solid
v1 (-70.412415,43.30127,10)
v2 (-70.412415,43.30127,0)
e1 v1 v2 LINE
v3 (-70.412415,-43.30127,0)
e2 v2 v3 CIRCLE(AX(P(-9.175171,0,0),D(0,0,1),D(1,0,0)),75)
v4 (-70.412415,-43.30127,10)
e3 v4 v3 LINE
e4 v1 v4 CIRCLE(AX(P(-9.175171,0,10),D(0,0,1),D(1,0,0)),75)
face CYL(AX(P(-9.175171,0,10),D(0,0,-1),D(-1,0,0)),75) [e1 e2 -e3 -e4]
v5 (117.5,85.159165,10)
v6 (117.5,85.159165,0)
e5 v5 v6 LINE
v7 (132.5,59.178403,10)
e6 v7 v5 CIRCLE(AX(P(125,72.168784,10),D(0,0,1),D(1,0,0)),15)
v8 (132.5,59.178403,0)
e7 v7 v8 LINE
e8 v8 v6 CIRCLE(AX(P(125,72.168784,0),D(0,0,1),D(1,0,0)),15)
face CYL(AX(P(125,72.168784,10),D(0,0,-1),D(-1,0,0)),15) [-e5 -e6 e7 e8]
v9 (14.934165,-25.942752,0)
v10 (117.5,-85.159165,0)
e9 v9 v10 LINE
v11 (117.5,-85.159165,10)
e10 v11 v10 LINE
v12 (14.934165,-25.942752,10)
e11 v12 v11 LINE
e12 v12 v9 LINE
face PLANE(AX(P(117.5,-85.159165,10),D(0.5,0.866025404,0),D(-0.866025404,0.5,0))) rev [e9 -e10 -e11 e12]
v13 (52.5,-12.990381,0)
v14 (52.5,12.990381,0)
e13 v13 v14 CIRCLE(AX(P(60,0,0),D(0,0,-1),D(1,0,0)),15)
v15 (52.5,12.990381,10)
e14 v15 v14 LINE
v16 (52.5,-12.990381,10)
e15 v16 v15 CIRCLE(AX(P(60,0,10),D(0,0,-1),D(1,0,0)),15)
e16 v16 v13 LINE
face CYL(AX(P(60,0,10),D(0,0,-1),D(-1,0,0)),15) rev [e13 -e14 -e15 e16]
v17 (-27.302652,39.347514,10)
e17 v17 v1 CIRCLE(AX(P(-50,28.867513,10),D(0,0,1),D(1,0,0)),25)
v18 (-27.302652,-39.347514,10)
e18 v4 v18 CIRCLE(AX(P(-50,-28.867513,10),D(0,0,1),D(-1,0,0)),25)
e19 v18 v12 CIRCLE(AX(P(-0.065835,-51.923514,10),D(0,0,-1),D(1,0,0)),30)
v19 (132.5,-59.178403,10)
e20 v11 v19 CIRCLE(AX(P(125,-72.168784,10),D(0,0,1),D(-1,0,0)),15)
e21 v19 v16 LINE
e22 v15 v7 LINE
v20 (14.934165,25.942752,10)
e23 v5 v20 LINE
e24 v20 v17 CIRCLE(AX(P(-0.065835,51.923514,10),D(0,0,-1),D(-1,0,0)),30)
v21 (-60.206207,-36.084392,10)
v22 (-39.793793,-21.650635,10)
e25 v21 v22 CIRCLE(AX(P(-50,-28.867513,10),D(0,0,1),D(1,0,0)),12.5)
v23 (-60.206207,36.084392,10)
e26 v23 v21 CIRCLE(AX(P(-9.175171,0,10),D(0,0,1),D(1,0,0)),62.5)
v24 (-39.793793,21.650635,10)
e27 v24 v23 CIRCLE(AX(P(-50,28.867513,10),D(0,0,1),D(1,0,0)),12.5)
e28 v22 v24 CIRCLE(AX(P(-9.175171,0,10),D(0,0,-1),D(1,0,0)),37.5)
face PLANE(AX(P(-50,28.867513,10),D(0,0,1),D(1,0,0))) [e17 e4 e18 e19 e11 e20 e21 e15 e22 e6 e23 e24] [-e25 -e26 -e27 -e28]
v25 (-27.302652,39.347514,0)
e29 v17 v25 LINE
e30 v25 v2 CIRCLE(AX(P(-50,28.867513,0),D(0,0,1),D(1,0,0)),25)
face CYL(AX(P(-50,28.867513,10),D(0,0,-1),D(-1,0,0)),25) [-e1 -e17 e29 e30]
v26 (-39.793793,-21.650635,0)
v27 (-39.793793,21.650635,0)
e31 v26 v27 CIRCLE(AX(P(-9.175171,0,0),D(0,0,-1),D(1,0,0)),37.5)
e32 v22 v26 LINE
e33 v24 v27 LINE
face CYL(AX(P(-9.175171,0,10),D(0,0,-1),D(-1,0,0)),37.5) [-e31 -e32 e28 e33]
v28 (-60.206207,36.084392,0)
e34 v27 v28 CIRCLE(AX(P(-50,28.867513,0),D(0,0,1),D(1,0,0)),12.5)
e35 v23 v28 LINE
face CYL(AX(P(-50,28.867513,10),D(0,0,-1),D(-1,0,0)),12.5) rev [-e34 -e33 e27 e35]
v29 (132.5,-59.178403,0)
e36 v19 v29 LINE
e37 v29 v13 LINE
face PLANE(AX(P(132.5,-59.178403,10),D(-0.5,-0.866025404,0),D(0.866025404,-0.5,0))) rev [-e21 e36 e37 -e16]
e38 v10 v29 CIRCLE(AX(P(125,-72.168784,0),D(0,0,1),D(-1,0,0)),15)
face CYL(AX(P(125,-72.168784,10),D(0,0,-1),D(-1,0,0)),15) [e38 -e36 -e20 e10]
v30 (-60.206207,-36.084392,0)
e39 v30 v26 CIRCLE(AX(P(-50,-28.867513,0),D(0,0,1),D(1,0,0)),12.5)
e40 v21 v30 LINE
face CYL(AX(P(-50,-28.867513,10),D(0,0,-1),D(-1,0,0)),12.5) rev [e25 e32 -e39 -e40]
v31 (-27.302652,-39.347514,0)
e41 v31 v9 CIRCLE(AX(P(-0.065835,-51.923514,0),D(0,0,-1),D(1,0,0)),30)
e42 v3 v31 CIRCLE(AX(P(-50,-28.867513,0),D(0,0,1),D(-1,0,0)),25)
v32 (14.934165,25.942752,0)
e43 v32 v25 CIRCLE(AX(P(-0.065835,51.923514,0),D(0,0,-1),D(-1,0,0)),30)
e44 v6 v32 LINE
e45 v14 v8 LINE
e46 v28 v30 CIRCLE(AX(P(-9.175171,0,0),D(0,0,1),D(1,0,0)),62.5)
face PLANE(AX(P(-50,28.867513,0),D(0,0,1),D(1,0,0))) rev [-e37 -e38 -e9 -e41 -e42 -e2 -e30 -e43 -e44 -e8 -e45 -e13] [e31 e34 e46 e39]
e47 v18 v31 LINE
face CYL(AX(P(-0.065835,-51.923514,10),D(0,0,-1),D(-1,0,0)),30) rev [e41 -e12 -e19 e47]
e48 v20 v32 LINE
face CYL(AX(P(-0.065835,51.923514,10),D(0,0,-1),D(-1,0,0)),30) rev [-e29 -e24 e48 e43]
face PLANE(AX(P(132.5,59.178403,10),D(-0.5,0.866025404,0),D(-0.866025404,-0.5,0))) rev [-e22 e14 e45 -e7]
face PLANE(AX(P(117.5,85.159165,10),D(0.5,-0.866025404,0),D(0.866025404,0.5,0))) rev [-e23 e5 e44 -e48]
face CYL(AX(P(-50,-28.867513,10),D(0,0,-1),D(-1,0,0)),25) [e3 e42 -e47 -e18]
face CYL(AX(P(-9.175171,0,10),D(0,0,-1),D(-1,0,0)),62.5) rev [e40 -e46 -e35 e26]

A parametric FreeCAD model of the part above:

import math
import FreeCAD as App
import Part
import Sketcher
Q = App.Units.Quantity

doc = App.newDocument("Part")
body = doc.addObject("PartDesign::Body", "Body")

# Sketch on XY plane
sketch1 = body.newObject("Sketcher::SketchObject", "Sketch")
sketch1.AttachmentSupport = (doc.getObject("XY_Plane"), [""])
sketch1.MapMode = "FlatFace"
sketch1.addGeometry([
    Part.LineSegment(App.Vector(118, 85, 0), App.Vector(15, 26, 0)),  # 0
    Part.ArcOfCircle(Part.Circle(App.Vector(0, 52, 0), App.Vector(0, 0, 1), 30), math.radians(-155), math.radians(-60)),  # 1
    Part.ArcOfCircle(Part.Circle(App.Vector(-50, 29, 0), App.Vector(0, 0, 1), 25), math.radians(25), math.radians(145)),  # 2
    Part.ArcOfCircle(Part.Circle(App.Vector(-9, 0, 0), App.Vector(0, 0, 1), 75), math.radians(145), math.radians(215)),  # 3
    Part.ArcOfCircle(Part.Circle(App.Vector(-50, -29, 0), App.Vector(0, 0, 1), 25), math.radians(-145), math.radians(-25)),  # 4
    Part.ArcOfCircle(Part.Circle(App.Vector(0, -52, 0), App.Vector(0, 0, 1), 30), math.radians(60), math.radians(155)),  # 5
    Part.LineSegment(App.Vector(15, -26, 0), App.Vector(118, -85, 0)),  # 6
    Part.ArcOfCircle(Part.Circle(App.Vector(125, -72, 0), App.Vector(0, 0, 1), 15), math.radians(-120), math.radians(60)),  # 7
    Part.LineSegment(App.Vector(132, -59, 0), App.Vector(52, -13, 0)),  # 8
    Part.ArcOfCircle(Part.Circle(App.Vector(60, 0, 0), App.Vector(0, 0, 1), 15), math.radians(120), math.radians(240)),  # 9
    Part.LineSegment(App.Vector(52, 13, 0), App.Vector(132, 59, 0)),  # 10
    Part.ArcOfCircle(Part.Circle(App.Vector(125, 72, 0), App.Vector(0, 0, 1), 15), math.radians(-60), math.radians(120)),  # 11
    Part.ArcOfCircle(Part.Circle(App.Vector(-9, 0, 0), App.Vector(0, 0, 1), 62), math.radians(145), math.radians(215)),  # 12
    Part.ArcOfCircle(Part.Circle(App.Vector(-50, 29, 0), App.Vector(0, 0, 1), 12), math.radians(-35), math.radians(145)),  # 13
    Part.ArcOfCircle(Part.Circle(App.Vector(-9, 0, 0), App.Vector(0, 0, 1), 37), math.radians(145), math.radians(215)),  # 14
    Part.ArcOfCircle(Part.Circle(App.Vector(-50, -29, 0), App.Vector(0, 0, 1), 12), math.radians(-145), math.radians(35)),  # 15
], False)
sketch1.addConstraint([
    Sketcher.Constraint("Tangent", 0, 2, 1, 2),
    Sketcher.Constraint("Tangent", 1, 1, 2, 1),
    Sketcher.Constraint("Tangent", 2, 2, 3, 1),
    Sketcher.Constraint("Tangent", 3, 2, 4, 1),
    Sketcher.Constraint("Tangent", 4, 2, 5, 2),
    Sketcher.Constraint("Tangent", 5, 1, 6, 1),
    Sketcher.Constraint("Tangent", 6, 2, 7, 1),
    Sketcher.Constraint("Tangent", 7, 2, 8, 1),
    Sketcher.Constraint("Tangent", 8, 2, 9, 2),
    Sketcher.Constraint("Tangent", 9, 1, 10, 1),
    Sketcher.Constraint("Tangent", 10, 2, 11, 1),
    Sketcher.Constraint("Tangent", 11, 2, 0, 1),
    Sketcher.Constraint("Tangent", 12, 1, 13, 2),
    Sketcher.Constraint("Tangent", 13, 1, 14, 1),
    Sketcher.Constraint("Tangent", 14, 2, 15, 2),
    Sketcher.Constraint("Tangent", 15, 1, 12, 2),
    Sketcher.Constraint("Coincident", 12, 3, 3, 3),
    Sketcher.Constraint("Coincident", 13, 3, 2, 3),
    Sketcher.Constraint("Coincident", 14, 3, 3, 3),
    Sketcher.Constraint("Coincident", 15, 3, 4, 3),
    Sketcher.Constraint("Equal", 1, 5),
    Sketcher.Constraint("Equal", 7, 9),
    Sketcher.Constraint("Equal", 9, 11),
    Sketcher.Constraint("Symmetric", 2, 3, 4, 3, -1),
    Sketcher.Constraint("Symmetric", 7, 3, 11, 3, -1),
    Sketcher.Constraint("PointOnObject", 9, 3, -1),
    Sketcher.Constraint("Parallel", 6, 8),
    Sketcher.Constraint("Parallel", 0, 10),
    Sketcher.Constraint("Radius", 1, Q("30 mm")),
    Sketcher.Constraint("Radius", 2, Q("25 mm")),
    Sketcher.Constraint("Radius", 3, Q("75 mm")),
    Sketcher.Constraint("Radius", 7, Q("15 mm")),
    Sketcher.Constraint("Radius", 12, Q("62.5 mm")),
    Sketcher.Constraint("Angle", 0, Q("-150 deg")),
    Sketcher.Constraint("DistanceX", 2, 3, -1, 1, Q("50 mm")),
    Sketcher.Constraint("DistanceX", -1, 1, 7, 3, Q("125 mm")),
    Sketcher.Constraint("DistanceX", -1, 1, 9, 3, Q("60 mm")),
    Sketcher.Constraint("DistanceY", 2, 3, 1, 1, Q("10.48 mm")),
])
pad1 = body.newObject("PartDesign::Pad", "Pad")
pad1.Profile = sketch1
pad1.Length = 10

doc.recompute()
